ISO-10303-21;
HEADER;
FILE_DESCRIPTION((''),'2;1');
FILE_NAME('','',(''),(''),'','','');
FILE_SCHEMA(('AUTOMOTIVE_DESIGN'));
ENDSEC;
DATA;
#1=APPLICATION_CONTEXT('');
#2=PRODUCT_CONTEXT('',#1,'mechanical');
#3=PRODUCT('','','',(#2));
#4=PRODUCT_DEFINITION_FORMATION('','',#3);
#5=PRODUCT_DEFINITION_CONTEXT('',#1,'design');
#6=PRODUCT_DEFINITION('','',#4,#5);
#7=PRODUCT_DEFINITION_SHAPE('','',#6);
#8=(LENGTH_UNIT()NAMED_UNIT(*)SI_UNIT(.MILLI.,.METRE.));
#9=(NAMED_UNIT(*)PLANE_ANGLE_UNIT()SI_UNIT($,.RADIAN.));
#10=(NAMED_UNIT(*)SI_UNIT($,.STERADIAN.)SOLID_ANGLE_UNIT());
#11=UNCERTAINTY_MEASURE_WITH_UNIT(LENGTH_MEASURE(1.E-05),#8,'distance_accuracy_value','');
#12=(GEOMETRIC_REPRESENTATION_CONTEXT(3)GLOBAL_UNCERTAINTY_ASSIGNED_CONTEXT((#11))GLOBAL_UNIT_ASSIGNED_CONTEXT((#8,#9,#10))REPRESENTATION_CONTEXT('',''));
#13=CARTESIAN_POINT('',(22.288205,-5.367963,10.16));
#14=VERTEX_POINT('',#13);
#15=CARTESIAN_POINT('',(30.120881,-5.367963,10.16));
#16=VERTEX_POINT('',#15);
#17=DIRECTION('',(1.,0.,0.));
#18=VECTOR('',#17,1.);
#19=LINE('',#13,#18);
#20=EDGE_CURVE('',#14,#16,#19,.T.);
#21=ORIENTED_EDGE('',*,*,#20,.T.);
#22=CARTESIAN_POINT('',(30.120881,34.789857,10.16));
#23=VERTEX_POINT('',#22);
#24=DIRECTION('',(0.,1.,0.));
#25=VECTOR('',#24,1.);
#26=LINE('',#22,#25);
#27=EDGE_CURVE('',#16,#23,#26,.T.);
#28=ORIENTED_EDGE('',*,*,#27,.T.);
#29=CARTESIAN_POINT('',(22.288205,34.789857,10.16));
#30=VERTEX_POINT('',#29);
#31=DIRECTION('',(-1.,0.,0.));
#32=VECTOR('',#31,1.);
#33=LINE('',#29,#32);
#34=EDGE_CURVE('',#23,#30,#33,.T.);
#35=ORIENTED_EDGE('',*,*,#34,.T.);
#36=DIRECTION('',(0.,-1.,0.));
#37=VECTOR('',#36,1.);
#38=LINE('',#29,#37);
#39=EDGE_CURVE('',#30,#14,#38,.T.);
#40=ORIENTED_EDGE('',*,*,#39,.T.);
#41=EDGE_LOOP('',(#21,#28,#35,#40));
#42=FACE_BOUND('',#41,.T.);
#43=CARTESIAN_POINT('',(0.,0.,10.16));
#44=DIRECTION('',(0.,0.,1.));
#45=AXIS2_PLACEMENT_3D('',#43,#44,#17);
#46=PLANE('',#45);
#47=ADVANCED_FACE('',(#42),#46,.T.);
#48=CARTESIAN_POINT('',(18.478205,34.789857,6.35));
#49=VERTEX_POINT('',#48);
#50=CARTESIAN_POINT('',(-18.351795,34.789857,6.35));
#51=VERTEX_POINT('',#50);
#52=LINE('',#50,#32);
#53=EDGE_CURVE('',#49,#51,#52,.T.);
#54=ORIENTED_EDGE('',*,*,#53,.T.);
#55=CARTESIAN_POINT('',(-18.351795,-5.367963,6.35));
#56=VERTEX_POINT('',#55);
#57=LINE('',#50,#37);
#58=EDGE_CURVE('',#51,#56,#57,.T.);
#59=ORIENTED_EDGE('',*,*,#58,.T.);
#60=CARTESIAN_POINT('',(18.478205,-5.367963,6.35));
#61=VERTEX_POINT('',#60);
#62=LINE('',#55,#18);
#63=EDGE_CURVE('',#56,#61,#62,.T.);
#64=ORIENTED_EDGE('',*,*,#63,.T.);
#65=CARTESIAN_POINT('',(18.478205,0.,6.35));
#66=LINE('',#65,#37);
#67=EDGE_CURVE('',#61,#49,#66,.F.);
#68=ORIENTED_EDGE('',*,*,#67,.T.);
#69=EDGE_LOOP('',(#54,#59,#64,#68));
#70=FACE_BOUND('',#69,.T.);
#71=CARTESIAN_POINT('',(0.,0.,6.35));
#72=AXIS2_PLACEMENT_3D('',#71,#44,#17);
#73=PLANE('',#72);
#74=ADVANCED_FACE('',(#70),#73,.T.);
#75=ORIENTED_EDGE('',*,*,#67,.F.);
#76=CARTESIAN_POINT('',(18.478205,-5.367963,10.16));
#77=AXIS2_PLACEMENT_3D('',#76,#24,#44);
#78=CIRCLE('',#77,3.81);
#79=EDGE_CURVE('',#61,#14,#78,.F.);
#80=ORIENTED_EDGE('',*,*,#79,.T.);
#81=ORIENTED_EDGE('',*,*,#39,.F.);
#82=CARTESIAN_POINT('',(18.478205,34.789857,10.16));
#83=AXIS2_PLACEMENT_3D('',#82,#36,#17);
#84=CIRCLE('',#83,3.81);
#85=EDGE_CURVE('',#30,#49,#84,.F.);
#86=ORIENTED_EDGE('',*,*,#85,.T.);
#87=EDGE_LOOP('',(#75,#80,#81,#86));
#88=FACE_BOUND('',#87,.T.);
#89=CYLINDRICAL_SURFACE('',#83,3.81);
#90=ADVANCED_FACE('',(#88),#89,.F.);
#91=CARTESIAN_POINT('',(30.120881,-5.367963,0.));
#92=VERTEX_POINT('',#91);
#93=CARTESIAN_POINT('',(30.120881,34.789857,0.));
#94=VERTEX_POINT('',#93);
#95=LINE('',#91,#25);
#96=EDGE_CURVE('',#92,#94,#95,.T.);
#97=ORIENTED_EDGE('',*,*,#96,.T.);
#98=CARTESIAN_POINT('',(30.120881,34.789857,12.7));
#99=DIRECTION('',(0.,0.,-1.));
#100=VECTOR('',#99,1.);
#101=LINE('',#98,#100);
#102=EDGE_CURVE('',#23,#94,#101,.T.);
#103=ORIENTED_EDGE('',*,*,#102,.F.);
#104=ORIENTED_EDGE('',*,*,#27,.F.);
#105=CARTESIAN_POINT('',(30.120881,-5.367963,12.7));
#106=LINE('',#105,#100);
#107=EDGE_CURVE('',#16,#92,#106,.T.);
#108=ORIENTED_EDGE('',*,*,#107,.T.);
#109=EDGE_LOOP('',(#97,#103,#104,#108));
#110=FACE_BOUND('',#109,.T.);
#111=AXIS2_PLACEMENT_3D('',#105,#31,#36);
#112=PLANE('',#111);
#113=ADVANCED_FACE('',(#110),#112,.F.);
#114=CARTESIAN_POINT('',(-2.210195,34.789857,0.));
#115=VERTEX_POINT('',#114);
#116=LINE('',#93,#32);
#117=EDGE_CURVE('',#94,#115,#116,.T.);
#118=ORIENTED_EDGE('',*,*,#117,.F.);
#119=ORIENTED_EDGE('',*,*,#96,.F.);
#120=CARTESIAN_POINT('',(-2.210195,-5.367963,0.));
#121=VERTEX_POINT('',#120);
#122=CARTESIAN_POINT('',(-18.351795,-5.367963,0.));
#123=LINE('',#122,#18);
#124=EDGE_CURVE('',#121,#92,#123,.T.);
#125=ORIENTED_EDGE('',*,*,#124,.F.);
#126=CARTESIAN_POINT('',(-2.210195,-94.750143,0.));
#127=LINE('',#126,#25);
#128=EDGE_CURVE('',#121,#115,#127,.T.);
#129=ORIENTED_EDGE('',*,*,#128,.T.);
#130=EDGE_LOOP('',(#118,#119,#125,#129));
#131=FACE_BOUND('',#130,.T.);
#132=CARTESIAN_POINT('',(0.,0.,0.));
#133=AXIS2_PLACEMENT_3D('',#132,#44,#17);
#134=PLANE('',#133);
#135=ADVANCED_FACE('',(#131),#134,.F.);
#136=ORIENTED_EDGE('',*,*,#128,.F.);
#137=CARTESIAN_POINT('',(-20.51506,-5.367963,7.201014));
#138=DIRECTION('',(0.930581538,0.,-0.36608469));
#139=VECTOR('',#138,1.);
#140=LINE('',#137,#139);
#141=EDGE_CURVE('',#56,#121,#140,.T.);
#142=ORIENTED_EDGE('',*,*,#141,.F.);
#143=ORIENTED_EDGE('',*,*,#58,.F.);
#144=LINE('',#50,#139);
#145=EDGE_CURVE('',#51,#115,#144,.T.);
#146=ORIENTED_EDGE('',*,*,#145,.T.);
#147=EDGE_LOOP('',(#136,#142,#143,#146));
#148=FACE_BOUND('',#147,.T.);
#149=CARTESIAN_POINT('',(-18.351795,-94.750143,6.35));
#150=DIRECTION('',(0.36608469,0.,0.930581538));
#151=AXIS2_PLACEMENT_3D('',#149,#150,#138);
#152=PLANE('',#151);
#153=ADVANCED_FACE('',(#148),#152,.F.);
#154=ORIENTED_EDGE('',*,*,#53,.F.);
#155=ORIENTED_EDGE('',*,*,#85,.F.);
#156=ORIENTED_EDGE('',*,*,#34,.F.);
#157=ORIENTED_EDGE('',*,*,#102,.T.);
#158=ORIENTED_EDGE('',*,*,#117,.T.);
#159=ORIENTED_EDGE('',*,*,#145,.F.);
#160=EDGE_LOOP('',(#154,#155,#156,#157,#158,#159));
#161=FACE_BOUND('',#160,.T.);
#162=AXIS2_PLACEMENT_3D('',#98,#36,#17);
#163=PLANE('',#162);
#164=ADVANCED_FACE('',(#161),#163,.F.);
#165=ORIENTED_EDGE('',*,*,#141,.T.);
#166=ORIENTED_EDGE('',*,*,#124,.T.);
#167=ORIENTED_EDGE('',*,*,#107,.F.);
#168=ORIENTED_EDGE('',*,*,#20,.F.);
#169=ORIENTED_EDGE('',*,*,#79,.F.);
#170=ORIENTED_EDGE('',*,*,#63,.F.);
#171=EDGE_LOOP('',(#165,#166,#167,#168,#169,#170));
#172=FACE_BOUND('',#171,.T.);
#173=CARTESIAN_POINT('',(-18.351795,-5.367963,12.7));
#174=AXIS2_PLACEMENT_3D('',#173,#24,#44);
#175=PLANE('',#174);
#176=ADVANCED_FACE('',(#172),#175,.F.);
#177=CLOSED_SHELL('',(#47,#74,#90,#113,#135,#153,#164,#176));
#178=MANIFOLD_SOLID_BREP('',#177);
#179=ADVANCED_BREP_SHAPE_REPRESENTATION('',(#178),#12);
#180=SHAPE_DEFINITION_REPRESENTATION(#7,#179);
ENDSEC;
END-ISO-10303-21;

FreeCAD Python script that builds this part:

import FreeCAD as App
import Part
import Sketcher

V = App.Vector
Q = App.Units.Quantity


def edges_at(feature, points):
    """Names of the edges that pass closest to the given points."""
    edges = feature.Shape.Edges
    near = lambda p: min(range(len(edges)), key=lambda i: edges[i].distToShape(Part.Vertex(*p))[0])
    return sorted({f"Edge{near(p) + 1}" for p in points})

doc = App.newDocument("Part")
body = doc.addObject("PartDesign::Body", "Body")

# Sketch on XY plane
sketch1 = body.newObject("Sketcher::SketchObject", "Sketch")
sketch1.AttachmentSupport = (doc.getObject("XY_Plane"), [""])
sketch1.MapMode = "FlatFace"
sketch1.addGeometry([
    Part.LineSegment(V(-18, 35, 0), V(-18, -5, 0)),
    Part.LineSegment(V(-18, -5, 0), V(30, -5, 0)),
    Part.LineSegment(V(30, -5, 0), V(30, 35, 0)),
    Part.LineSegment(V(30, 35, 0), V(-18, 35, 0)),
], False)
sketch1.addConstraint([
    Sketcher.Constraint("Coincident", 0, 2, 1, 1),
    Sketcher.Constraint("Coincident", 1, 2, 2, 1),
    Sketcher.Constraint("Coincident", 2, 2, 3, 1),
    Sketcher.Constraint("Coincident", 3, 2, 0, 1),
    Sketcher.Constraint("Vertical", 0),
    Sketcher.Constraint("Horizontal", 1),
    Sketcher.Constraint("Vertical", 2),
    Sketcher.Constraint("Horizontal", 3),
    Sketcher.Constraint("DistanceY", 0, 2, 0, 1, 40.15782),
    Sketcher.Constraint("DistanceX", 1, 1, 1, 2, 48.472677),
    Sketcher.Constraint("DistanceX", -1, 1, 1, 2, 30.120881),
    Sketcher.Constraint("DistanceY", 0, 2, -1, 1, 5.367963),
])
pad1 = body.newObject("PartDesign::Pad", "Pad")
pad1.Profile = sketch1
pad1.Length = Q("0.5 in")

# Sketch on XY plane
sketch2 = body.newObject("Sketcher::SketchObject", "Sketch001")
sketch2.AttachmentSupport = (doc.getObject("XY_Plane"), [""])
sketch2.MapMode = "FlatFace"
sketch2.AttachmentOffset = App.Placement(V(0, 0, 0.5 * 25.4), App.Rotation())
sketch2.addGeometry([
    Part.LineSegment(V(-18, 35, 0), V(-18, -5, 0)),
    Part.LineSegment(V(-18, -5, 0), V(22, -5, 0)),
    Part.LineSegment(V(22, -5, 0), V(22, 35, 0)),
    Part.LineSegment(V(22, 35, 0), V(-18, 35, 0)),
], False)
sketch2.addConstraint([
    Sketcher.Constraint("Coincident", 0, 2, 1, 1),
    Sketcher.Constraint("Coincident", 1, 2, 2, 1),
    Sketcher.Constraint("Coincident", 2, 2, 3, 1),
    Sketcher.Constraint("Coincident", 3, 2, 0, 1),
    Sketcher.Constraint("Vertical", 0),
    Sketcher.Constraint("Horizontal", 1),
    Sketcher.Constraint("Vertical", 2),
    Sketcher.Constraint("Horizontal", 3),
    Sketcher.Constraint("DistanceX", 1, 1, 1, 2, Q("1.6 in")),
    Sketcher.Constraint("DistanceY", 0, 2, 0, 1, 40.15782),
    Sketcher.Constraint("DistanceX", 0, 2, -1, 1, 18.351795),
    Sketcher.Constraint("DistanceY", 0, 2, -1, 1, 5.367963),
])
pocket1 = body.newObject("PartDesign::Pocket", "Pocket")
pocket1.Profile = sketch2
pocket1.Length = Q("0.25 in")
doc.recompute()

fillet = body.newObject("PartDesign::Fillet", "Fillet")
fillet.Base = (pocket1, edges_at(pocket1, [(22.288, 14.711, 6.35)]))
fillet.Radius = Q("0.15 in")

# Sketch on XY plane
sketch3 = body.newObject("Sketcher::SketchObject", "Sketch002")
sketch3.AttachmentSupport = (doc.getObject("XY_Plane"), [""])
sketch3.MapMode = "FlatFace"
sketch3.AttachmentOffset = App.Placement(V(0, 0, 0.5 * 25.4), App.Rotation())
sketch3.addGeometry([
    Part.LineSegment(V(22, 35, 0), V(22, -5, 0)),
    Part.LineSegment(V(22, -5, 0), V(30, -5, 0)),
    Part.LineSegment(V(30, -5, 0), V(30, 35, 0)),
    Part.LineSegment(V(30, 35, 0), V(22, 35, 0)),
], False)
sketch3.addConstraint([
    Sketcher.Constraint("Coincident", 0, 2, 1, 1),
    Sketcher.Constraint("Coincident", 1, 2, 2, 1),
    Sketcher.Constraint("Coincident", 2, 2, 3, 1),
    Sketcher.Constraint("Coincident", 3, 2, 0, 1),
    Sketcher.Constraint("Vertical", 0),
    Sketcher.Constraint("Horizontal", 1),
    Sketcher.Constraint("Vertical", 2),
    Sketcher.Constraint("Horizontal", 3),
    Sketcher.Constraint("DistanceY", 0, 2, 0, 1, 40.15782),
    Sketcher.Constraint("DistanceX", 1, 1, 1, 2, 7.832677),
    Sketcher.Constraint("DistanceX", -1, 1, 1, 2, 30.120881),
    Sketcher.Constraint("DistanceY", 0, 2, -1, 1, 5.367963),
])
pocket2 = body.newObject("PartDesign::Pocket", "Pocket001")
pocket2.Profile = sketch3
pocket2.Length = Q("0.1 in")

# Sketch on XZ plane
sketch4 = body.newObject("Sketcher::SketchObject", "Sketch003")
sketch4.AttachmentSupport = (doc.getObject("XZ_Plane"), [""])
sketch4.MapMode = "FlatFace"
sketch4.AttachmentOffset = App.Placement(V(0, 0, -34.789857), App.Rotation())
sketch4.addGeometry([
    Part.LineSegment(V(-18, 0, 0), V(-18, 6, 0)),
    Part.LineSegment(V(-18, 6, 0), V(-2, 0, 0)),
    Part.LineSegment(V(-2, 0, 0), V(-18, 0, 0)),
], False)
sketch4.addConstraint([
    Sketcher.Constraint("Coincident", 0, 2, 1, 1),
    Sketcher.Constraint("Coincident", 1, 2, 2, 1),
    Sketcher.Constraint("Coincident", 2, 2, 0, 1),
    Sketcher.Constraint("Vertical", 0),
    Sketcher.Constraint("Horizontal", 2),
    Sketcher.Constraint("PointOnObject", 1, 2, -1),
    Sketcher.Constraint("DistanceY", 0, 1, 0, 2, Q("0.25 in")),
    Sketcher.Constraint("DistanceX", 2, 2, 2, 1, 16.1416),
    Sketcher.Constraint("DistanceX", 0, 2, -1, 1, 18.351795),
])
pocket3 = body.newObject("PartDesign::Pocket", "Pocket002")
pocket3.Profile = sketch4
pocket3.Length = Q("5.1 in")
pocket3.Reversed = True

doc.recompute()
